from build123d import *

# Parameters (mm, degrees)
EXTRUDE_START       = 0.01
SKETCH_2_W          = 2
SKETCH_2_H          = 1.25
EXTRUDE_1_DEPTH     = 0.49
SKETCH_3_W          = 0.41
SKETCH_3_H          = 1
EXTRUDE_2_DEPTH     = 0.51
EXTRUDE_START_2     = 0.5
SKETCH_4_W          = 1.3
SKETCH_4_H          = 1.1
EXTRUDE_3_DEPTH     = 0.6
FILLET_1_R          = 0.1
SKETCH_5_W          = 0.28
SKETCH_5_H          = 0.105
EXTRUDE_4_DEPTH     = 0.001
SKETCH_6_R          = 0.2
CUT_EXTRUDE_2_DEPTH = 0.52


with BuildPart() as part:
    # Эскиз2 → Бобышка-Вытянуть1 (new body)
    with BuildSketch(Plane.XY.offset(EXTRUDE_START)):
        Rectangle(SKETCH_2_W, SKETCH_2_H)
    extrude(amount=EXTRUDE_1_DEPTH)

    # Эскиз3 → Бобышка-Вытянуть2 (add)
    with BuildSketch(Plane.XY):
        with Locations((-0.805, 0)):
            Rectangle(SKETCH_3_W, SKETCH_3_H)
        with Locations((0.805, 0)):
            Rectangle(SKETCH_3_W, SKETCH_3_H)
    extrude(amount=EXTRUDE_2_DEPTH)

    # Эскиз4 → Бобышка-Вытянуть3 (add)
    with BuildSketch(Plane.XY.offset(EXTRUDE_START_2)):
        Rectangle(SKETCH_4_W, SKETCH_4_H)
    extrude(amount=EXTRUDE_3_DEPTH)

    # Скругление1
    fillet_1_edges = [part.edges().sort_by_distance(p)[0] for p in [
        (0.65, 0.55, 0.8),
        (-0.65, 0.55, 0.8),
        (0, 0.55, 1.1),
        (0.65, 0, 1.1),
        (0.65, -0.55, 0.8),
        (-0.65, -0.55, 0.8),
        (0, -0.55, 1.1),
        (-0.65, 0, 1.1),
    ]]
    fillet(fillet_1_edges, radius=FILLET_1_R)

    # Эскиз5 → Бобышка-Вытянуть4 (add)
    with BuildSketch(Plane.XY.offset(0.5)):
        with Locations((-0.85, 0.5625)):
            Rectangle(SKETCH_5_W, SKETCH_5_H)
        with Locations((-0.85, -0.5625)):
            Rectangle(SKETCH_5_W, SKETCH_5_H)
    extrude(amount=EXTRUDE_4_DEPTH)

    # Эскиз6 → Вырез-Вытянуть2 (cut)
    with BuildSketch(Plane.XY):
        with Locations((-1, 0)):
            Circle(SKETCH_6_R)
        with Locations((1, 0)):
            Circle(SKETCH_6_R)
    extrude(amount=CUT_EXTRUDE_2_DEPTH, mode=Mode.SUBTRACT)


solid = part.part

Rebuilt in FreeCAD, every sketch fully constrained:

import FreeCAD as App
import Part
import Sketcher


def edges_at(feature, points):
    """Names of the edges that pass closest to the given points."""
    edges = feature.Shape.Edges
    near = lambda p: min(range(len(edges)), key=lambda i: edges[i].distToShape(Part.Vertex(*p))[0])
    return sorted({f"Edge{near(p) + 1}" for p in points})


def add_polygon(sketch, points):
    """Adds a closed chain of lines whose ends are joined by coincident constraints."""
    first, n = sketch.GeometryCount, len(points)
    for a, b in zip(points, points[1:] + points[:1]):
        sketch.addGeometry(Part.LineSegment(App.Vector(*a, 0), App.Vector(*b, 0)), False)
    for i in range(n):
        sketch.addConstraint(Sketcher.Constraint("Coincident", first + i, 2, first + (i + 1) % n, 1))

doc = App.newDocument("Part")
body = doc.addObject("PartDesign::Body", "Body")

# Sketch on XY plane
sketch1 = body.newObject("Sketcher::SketchObject", "Sketch")
sketch1.AttachmentSupport = (doc.getObject("XY_Plane"), [""])
sketch1.MapMode = "FlatFace"
sketch1.AttachmentOffset = App.Placement(App.Vector(0, 0, 0.01), App.Rotation())
add_polygon(sketch1, [(-1, 0.6), (-1, -0.6), (1, -0.6), (1, 0.6)])  # lines 0-3
sketch1.addConstraint(Sketcher.Constraint("Vertical", 0))
sketch1.addConstraint(Sketcher.Constraint("Horizontal", 1))
sketch1.addConstraint(Sketcher.Constraint("Vertical", 2))
sketch1.addConstraint(Sketcher.Constraint("Horizontal", 3))
sketch1.addConstraint(Sketcher.Constraint("Symmetric", 0, 2, 2, 2, -1, 1))
sketch1.addConstraint(Sketcher.Constraint("DistanceX", 1, 1, 1, 2, 2.0))
sketch1.addConstraint(Sketcher.Constraint("DistanceY", 0, 2, 0, 1, 1.25))
pad1 = body.newObject("PartDesign::Pad", "Pad")
pad1.Profile = sketch1
pad1.Length = 0.49

# Sketch on XY plane
sketch2 = body.newObject("Sketcher::SketchObject", "Sketch001")
sketch2.AttachmentSupport = (doc.getObject("XY_Plane"), [""])
sketch2.MapMode = "FlatFace"
add_polygon(sketch2, [(-1.01, 0.5), (-1.01, -0.5), (-0.6, -0.5), (-0.6, 0.5)])  # lines 0-3
add_polygon(sketch2, [(0.6, 0.5), (0.6, -0.5), (1.01, -0.5), (1.01, 0.5)])  # lines 4-7
sketch2.addConstraint(Sketcher.Constraint("Vertical", 0))
sketch2.addConstraint(Sketcher.Constraint("Horizontal", 1))
sketch2.addConstraint(Sketcher.Constraint("Vertical", 2))
sketch2.addConstraint(Sketcher.Constraint("Horizontal", 3))
sketch2.addConstraint(Sketcher.Constraint("Vertical", 4))
sketch2.addConstraint(Sketcher.Constraint("Horizontal", 5))
sketch2.addConstraint(Sketcher.Constraint("Vertical", 6))
sketch2.addConstraint(Sketcher.Constraint("Horizontal", 7))
sketch2.addConstraint(Sketcher.Constraint("Symmetric", 2, 2, 4, 2, -1, 1))
sketch2.addConstraint(Sketcher.Constraint("Symmetric", 0, 2, 6, 2, -1, 1))
sketch2.addConstraint(Sketcher.Constraint("Horizontal", 1, 2, 4, 2))
sketch2.addConstraint(Sketcher.Constraint("DistanceY", 0, 2, 0, 1, 1.0))
sketch2.addConstraint(Sketcher.Constraint("DistanceX", 1, 1, 1, 2, 0.41))
sketch2.addConstraint(Sketcher.Constraint("DistanceX", 1, 2, -1, 1, 0.6))
pad2 = body.newObject("PartDesign::Pad", "Pad001")
pad2.Profile = sketch2
pad2.Length = 0.51

# Sketch on XY plane
sketch3 = body.newObject("Sketcher::SketchObject", "Sketch002")
sketch3.AttachmentSupport = (doc.getObject("XY_Plane"), [""])
sketch3.MapMode = "FlatFace"
sketch3.AttachmentOffset = App.Placement(App.Vector(0, 0, 0.5), App.Rotation())
add_polygon(sketch3, [(-0.7, 0.6), (-0.7, -0.6), (0.7, -0.6), (0.7, 0.6)])  # lines 0-3
sketch3.addConstraint(Sketcher.Constraint("Vertical", 0))
sketch3.addConstraint(Sketcher.Constraint("Horizontal", 1))
sketch3.addConstraint(Sketcher.Constraint("Vertical", 2))
sketch3.addConstraint(Sketcher.Constraint("Horizontal", 3))
sketch3.addConstraint(Sketcher.Constraint("Symmetric", 0, 2, 2, 2, -1, 1))
sketch3.addConstraint(Sketcher.Constraint("DistanceX", 1, 1, 1, 2, 1.3))
sketch3.addConstraint(Sketcher.Constraint("DistanceY", 0, 2, 0, 1, 1.1))
pad3 = body.newObject("PartDesign::Pad", "Pad002")
pad3.Profile = sketch3
pad3.Length = 0.6
doc.recompute()

fillet = body.newObject("PartDesign::Fillet", "Fillet")
fillet.Base = (pad3, edges_at(pad3, [
    (0.65, 0.55, 0.8),
    (-0.65, 0.55, 0.8),
    (0, 0.55, 1.1),
    (0.65, 0, 1.1),
    (0.65, -0.55, 0.8),
    (-0.65, -0.55, 0.8),
    (0, -0.55, 1.1),
    (-0.65, 0, 1.1),
]))
fillet.Radius = 0.1

# Sketch on XY plane
sketch4 = body.newObject("Sketcher::SketchObject", "Sketch003")
sketch4.AttachmentSupport = (doc.getObject("XY_Plane"), [""])
sketch4.MapMode = "FlatFace"
sketch4.AttachmentOffset = App.Placement(App.Vector(0, 0, 0.5), App.Rotation())
add_polygon(sketch4, [(-0.99, 0.61), (-0.99, 0.51), (-0.71, 0.51), (-0.71, 0.61)])  # lines 0-3
add_polygon(sketch4, [(-0.99, -0.51), (-0.99, -0.61), (-0.71, -0.61), (-0.71, -0.51)])  # lines 4-7
sketch4.addConstraint(Sketcher.Constraint("Vertical", 0))
sketch4.addConstraint(Sketcher.Constraint("Horizontal", 1))
sketch4.addConstraint(Sketcher.Constraint("Vertical", 2))
sketch4.addConstraint(Sketcher.Constraint("Horizontal", 3))
sketch4.addConstraint(Sketcher.Constraint("Vertical", 4))
sketch4.addConstraint(Sketcher.Constraint("Horizontal", 5))
sketch4.addConstraint(Sketcher.Constraint("Vertical", 6))
sketch4.addConstraint(Sketcher.Constraint("Horizontal", 7))
sketch4.addConstraint(Sketcher.Constraint("Symmetric", 3, 2, 4, 2, -1))
sketch4.addConstraint(Sketcher.Constraint("Symmetric", 1, 2, 6, 2, -1))
sketch4.addConstraint(Sketcher.Constraint("DistanceX", 1, 1, 1, 2, 0.28))
sketch4.addConstraint(Sketcher.Constraint("DistanceY", 0, 2, 0, 1, 0.105))
sketch4.addConstraint(Sketcher.Constraint("DistanceX", 0, 2, -1, 1, 0.99))
sketch4.addConstraint(Sketcher.Constraint("DistanceY", -1, 1, 0, 2, 0.51))
pad4 = body.newObject("PartDesign::Pad", "Pad003")
pad4.Profile = sketch4
pad4.Length = 0.001

# Sketch on XY plane
sketch5 = body.newObject("Sketcher::SketchObject", "Sketch004")
sketch5.AttachmentSupport = (doc.getObject("XY_Plane"), [""])
sketch5.MapMode = "FlatFace"
sketch5.addGeometry(Part.Circle(App.Vector(-1, 0, 0), App.Vector(0, 0, 1), 0.2), False)
sketch5.addGeometry(Part.Circle(App.Vector(1, 0, 0), App.Vector(0, 0, 1), 0.2), False)
sketch5.addConstraint(Sketcher.Constraint("Equal", 0, 1))
sketch5.addConstraint(Sketcher.Constraint("Symmetric", 0, 3, 1, 3, -1, 1))
sketch5.addConstraint(Sketcher.Constraint("PointOnObject", 0, 3, -1))
sketch5.addConstraint(Sketcher.Constraint("Diameter", 0, 0.4))
sketch5.addConstraint(Sketcher.Constraint("DistanceX", 0, 3, -1, 1, 1.0))
pocket1 = body.newObject("PartDesign::Pocket", "Pocket")
pocket1.Profile = sketch5
pocket1.Length = 0.52
pocket1.Reversed = True

doc.recompute()
